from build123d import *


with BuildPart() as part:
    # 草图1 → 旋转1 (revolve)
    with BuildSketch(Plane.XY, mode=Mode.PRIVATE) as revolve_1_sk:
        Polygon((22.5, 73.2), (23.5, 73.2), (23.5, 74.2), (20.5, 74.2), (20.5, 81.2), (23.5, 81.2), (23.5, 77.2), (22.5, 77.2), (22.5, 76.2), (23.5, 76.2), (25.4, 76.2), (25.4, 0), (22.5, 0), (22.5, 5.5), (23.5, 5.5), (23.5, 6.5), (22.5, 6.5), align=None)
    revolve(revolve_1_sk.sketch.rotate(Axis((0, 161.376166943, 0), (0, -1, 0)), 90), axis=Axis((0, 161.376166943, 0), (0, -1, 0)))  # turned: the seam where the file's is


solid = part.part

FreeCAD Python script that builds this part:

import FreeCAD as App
import Part
import Sketcher
from FreeCAD import Vector
Q = App.Units.Quantity

doc = App.newDocument("Part")
body = doc.addObject("PartDesign::Body", "Body")

# Sketch on XY plane
sketch1 = doc.addObject("Sketcher::SketchObject", "Sketch")
body.addObject(sketch1)
sketch1.AttachmentSupport = (doc.XY_Plane, [""])
sketch1.MapMode = "FlatFace"
sketch1.addGeometry([
    Part.LineSegment(Vector(23.5, 73.2, 0), Vector(22.5, 73.2, 0)),  # 0
    Part.LineSegment(Vector(22.5, 73.2, 0), Vector(22.5, 6.5, 0)),  # 1
    Part.LineSegment(Vector(22.5, 6.5, 0), Vector(23.5, 6.5, 0)),  # 2
    Part.LineSegment(Vector(23.5, 6.5, 0), Vector(23.5, 5.5, 0)),  # 3
    Part.LineSegment(Vector(23.5, 5.5, 0), Vector(22.5, 5.5, 0)),  # 4
    Part.LineSegment(Vector(22.5, 5.5, 0), Vector(22.5, 0, 0)),  # 5
    Part.LineSegment(Vector(22.5, 0, 0), Vector(25.4, 0, 0)),  # 6
    Part.LineSegment(Vector(25.4, 0, 0), Vector(25.4, 76.2, 0)),  # 7
    Part.LineSegment(Vector(25.4, 76.2, 0), Vector(22.5, 76.2, 0)),  # 8
    Part.LineSegment(Vector(22.5, 76.2, 0), Vector(22.5, 77.2, 0)),  # 9
    Part.LineSegment(Vector(22.5, 77.2, 0), Vector(23.5, 77.2, 0)),  # 10
    Part.LineSegment(Vector(23.5, 77.2, 0), Vector(23.5, 81.2, 0)),  # 11
    Part.LineSegment(Vector(23.5, 81.2, 0), Vector(20.5, 81.2, 0)),  # 12
    Part.LineSegment(Vector(20.5, 81.2, 0), Vector(20.5, 74.2, 0)),  # 13
    Part.LineSegment(Vector(20.5, 74.2, 0), Vector(23.5, 74.2, 0)),  # 14
    Part.LineSegment(Vector(23.5, 74.2, 0), Vector(23.5, 73.2, 0)),  # 15
], False)
sketch1.addConstraint([
    Sketcher.Constraint("Coincident", 0, 2, 1, 1),
    Sketcher.Constraint("Coincident", 1, 2, 2, 1),
    Sketcher.Constraint("Coincident", 2, 2, 3, 1),
    Sketcher.Constraint("Coincident", 3, 2, 4, 1),
    Sketcher.Constraint("Coincident", 4, 2, 5, 1),
    Sketcher.Constraint("Coincident", 5, 2, 6, 1),
    Sketcher.Constraint("Coincident", 6, 2, 7, 1),
    Sketcher.Constraint("Coincident", 7, 2, 8, 1),
    Sketcher.Constraint("Coincident", 8, 2, 9, 1),
    Sketcher.Constraint("Coincident", 9, 2, 10, 1),
    Sketcher.Constraint("Coincident", 10, 2, 11, 1),
    Sketcher.Constraint("Coincident", 11, 2, 12, 1),
    Sketcher.Constraint("Coincident", 12, 2, 13, 1),
    Sketcher.Constraint("Coincident", 13, 2, 14, 1),
    Sketcher.Constraint("Coincident", 14, 2, 15, 1),
    Sketcher.Constraint("Coincident", 15, 2, 0, 1),
    Sketcher.Constraint("Horizontal", 0),
    Sketcher.Constraint("Vertical", 1),
    Sketcher.Constraint("Horizontal", 2),
    Sketcher.Constraint("Vertical", 3),
    Sketcher.Constraint("Horizontal", 4),
    Sketcher.Constraint("Vertical", 5),
    Sketcher.Constraint("Horizontal", 6),
    Sketcher.Constraint("Vertical", 7),
    Sketcher.Constraint("Horizontal", 8),
    Sketcher.Constraint("Vertical", 9),
    Sketcher.Constraint("Horizontal", 10),
    Sketcher.Constraint("Vertical", 11),
    Sketcher.Constraint("Horizontal", 12),
    Sketcher.Constraint("Vertical", 13),
    Sketcher.Constraint("Horizontal", 14),
    Sketcher.Constraint("Vertical", 15),
    Sketcher.Constraint("PointOnObject", 5, 2, -1),
    Sketcher.Constraint("Vertical", 1, 2, 4, 2),
    Sketcher.Constraint("Vertical", 5, 2, 8, 2),
    Sketcher.Constraint("Vertical", 3, 2, 10, 2),
    Sketcher.Constraint("Vertical", 11, 2, 14, 2),
    Sketcher.Constraint("Equal", 10, 3),
    Sketcher.Constraint("Equal", 3, 9),
    Sketcher.Constraint("Equal", 9, 15),
    Sketcher.Constraint("DistanceX", 0, 2, 0, 1, Q("1 mm")),
    Sketcher.Constraint("DistanceX", 12, 2, 12, 1, Q("3 mm")),
    Sketcher.Constraint("DistanceY", 11, 1, 11, 2, Q("4 mm")),
    Sketcher.Constraint("DistanceY", 13, 2, 13, 1, Q("7 mm")),
    Sketcher.Constraint("DistanceX", 6, 1, 6, 2, Q("2.9 mm")),
    Sketcher.Constraint("DistanceY", 1, 2, 1, 1, Q("66.7 mm")),
    Sketcher.Constraint("DistanceY", 5, 2, 5, 1, Q("5.5 mm")),
    Sketcher.Constraint("DistanceX", -1, 1, 0, 2, Q("22.5 mm")),
])
revolution = doc.addObject("PartDesign::Revolution", "Revolution")
body.addObject(revolution)
revolution.Profile = sketch1
revolution.ReferenceAxis = (sketch1, ["V_Axis"])
revolution.Angle = 360

doc.recompute()
